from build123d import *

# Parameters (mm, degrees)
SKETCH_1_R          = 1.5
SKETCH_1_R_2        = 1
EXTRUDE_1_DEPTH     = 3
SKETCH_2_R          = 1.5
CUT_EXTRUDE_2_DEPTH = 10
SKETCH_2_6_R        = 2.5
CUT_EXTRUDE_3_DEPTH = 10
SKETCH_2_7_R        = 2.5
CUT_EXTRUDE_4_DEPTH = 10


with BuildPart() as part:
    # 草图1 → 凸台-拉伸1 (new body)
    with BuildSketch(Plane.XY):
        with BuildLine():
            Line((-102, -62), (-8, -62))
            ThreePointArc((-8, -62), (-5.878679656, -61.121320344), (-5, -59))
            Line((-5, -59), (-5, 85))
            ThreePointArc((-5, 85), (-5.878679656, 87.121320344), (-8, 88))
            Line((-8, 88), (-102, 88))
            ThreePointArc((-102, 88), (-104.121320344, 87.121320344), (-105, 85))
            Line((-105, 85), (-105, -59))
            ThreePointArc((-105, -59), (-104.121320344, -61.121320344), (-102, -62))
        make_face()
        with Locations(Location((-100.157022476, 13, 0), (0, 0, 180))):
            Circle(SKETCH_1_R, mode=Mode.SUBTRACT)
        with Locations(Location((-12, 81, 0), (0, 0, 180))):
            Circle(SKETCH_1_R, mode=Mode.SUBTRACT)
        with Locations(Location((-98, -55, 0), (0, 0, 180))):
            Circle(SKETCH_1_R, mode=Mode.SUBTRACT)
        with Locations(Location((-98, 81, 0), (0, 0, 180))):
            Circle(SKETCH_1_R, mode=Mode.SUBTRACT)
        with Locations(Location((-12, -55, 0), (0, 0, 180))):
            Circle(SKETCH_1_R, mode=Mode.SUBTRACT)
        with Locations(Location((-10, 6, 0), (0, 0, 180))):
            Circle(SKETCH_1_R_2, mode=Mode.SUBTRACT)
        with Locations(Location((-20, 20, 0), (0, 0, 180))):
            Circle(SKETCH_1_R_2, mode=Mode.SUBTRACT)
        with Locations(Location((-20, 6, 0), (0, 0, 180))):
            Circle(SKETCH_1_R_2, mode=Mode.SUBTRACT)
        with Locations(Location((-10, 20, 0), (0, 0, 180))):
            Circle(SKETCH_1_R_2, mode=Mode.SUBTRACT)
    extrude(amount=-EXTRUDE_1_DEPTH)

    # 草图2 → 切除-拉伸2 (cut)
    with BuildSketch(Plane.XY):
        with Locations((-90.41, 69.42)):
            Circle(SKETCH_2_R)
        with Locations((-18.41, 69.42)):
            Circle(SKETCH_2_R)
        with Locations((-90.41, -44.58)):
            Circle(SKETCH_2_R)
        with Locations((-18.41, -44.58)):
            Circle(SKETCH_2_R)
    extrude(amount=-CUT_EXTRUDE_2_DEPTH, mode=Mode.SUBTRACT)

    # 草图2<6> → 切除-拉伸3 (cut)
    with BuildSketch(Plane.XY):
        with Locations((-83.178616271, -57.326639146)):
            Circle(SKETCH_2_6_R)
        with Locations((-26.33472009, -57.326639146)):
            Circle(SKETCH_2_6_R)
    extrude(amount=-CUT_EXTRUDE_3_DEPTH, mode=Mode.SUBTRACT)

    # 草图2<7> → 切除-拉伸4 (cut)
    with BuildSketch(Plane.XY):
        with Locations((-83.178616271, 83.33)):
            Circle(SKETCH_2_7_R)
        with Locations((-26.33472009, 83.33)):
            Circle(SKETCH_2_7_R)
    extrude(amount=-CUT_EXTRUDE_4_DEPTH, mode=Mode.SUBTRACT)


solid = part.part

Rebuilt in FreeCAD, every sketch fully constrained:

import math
import FreeCAD as App
import Part
import Sketcher
from FreeCAD import Vector
Q = App.Units.Quantity

doc = App.newDocument("Part")
body = doc.addObject("PartDesign::Body", "Body")

sketch1 = body.newObject("Sketcher::SketchObject", "Sketch")
sketch1.AttachmentSupport = (doc.getObject("XY_Plane"), [""])
sketch1.MapMode = "FlatFace"
sketch1.addGeometry([
    Part.LineSegment(Vector(-102, -62, 0), Vector(-8, -62, 0)),
    Part.ArcOfCircle(Part.Circle(Vector(-8, -59, 0), Vector(0, 0, 1), 3), math.radians(-90), math.radians(0)),
    Part.LineSegment(Vector(-5, -59, 0), Vector(-5, 85, 0)),
    Part.ArcOfCircle(Part.Circle(Vector(-8, 85, 0), Vector(0, 0, 1), 3), math.radians(0), math.radians(90)),
    Part.LineSegment(Vector(-8, 88, 0), Vector(-102, 88, 0)),
    Part.ArcOfCircle(Part.Circle(Vector(-102, 85, 0), Vector(0, 0, 1), 3), math.radians(90), math.radians(180)),
    Part.LineSegment(Vector(-105, 85, 0), Vector(-105, -59, 0)),
    Part.ArcOfCircle(Part.Circle(Vector(-102, -59, 0), Vector(0, 0, 1), 3), math.radians(180), math.radians(270)),
    Part.Circle(Vector(-98, -55, 0), Vector(0, 0, 1), 1.5),
    Part.Circle(Vector(-12, -55, 0), Vector(0, 0, 1), 1.5),
    Part.Circle(Vector(-20, 6, 0), Vector(0, 0, 1), 1),
    Part.Circle(Vector(-10, 6, 0), Vector(0, 0, 1), 1),
    Part.Circle(Vector(-100.2, 13, 0), Vector(0, 0, 1), 1.5),
    Part.Circle(Vector(-98, 81, 0), Vector(0, 0, 1), 1.5),
    Part.Circle(Vector(-20, 20, 0), Vector(0, 0, 1), 1),
    Part.Circle(Vector(-10, 20, 0), Vector(0, 0, 1), 1),
    Part.Circle(Vector(-12, 81, 0), Vector(0, 0, 1), 1.5),
], False)
sketch1.addConstraint([
    Sketcher.Constraint("Tangent", 0, 2, 1, 1),
    Sketcher.Constraint("Tangent", 1, 2, 2, 1),
    Sketcher.Constraint("Tangent", 2, 2, 3, 1),
    Sketcher.Constraint("Tangent", 3, 2, 4, 1),
    Sketcher.Constraint("Tangent", 4, 2, 5, 1),
    Sketcher.Constraint("Tangent", 5, 2, 6, 1),
    Sketcher.Constraint("Tangent", 6, 2, 7, 1),
    Sketcher.Constraint("Tangent", 7, 2, 0, 1),
    Sketcher.Constraint("Horizontal", 0),
    Sketcher.Constraint("Vertical", 2),
    Sketcher.Constraint("Horizontal", 4),
    Sketcher.Constraint("Vertical", 6),
    Sketcher.Constraint("Equal", 1, 3),
    Sketcher.Constraint("Equal", 3, 5),
    Sketcher.Constraint("Equal", 5, 7),
    Sketcher.Constraint("Equal", 8, 9),
    Sketcher.Constraint("Equal", 10, 11),
    Sketcher.Constraint("Equal", 9, 12),
    Sketcher.Constraint("Equal", 12, 13),
    Sketcher.Constraint("Equal", 11, 14),
    Sketcher.Constraint("Equal", 14, 15),
    Sketcher.Constraint("Equal", 13, 16),
    Sketcher.Constraint("Horizontal", 8, 3, 9, 3),
    Sketcher.Constraint("Horizontal", 10, 3, 11, 3),
    Sketcher.Constraint("Horizontal", 14, 3, 15, 3),
    Sketcher.Constraint("Horizontal", 13, 3, 16, 3),
    Sketcher.Constraint("Vertical", 8, 3, 13, 3),
    Sketcher.Constraint("Vertical", 10, 3, 14, 3),
    Sketcher.Constraint("Vertical", 11, 3, 15, 3),
    Sketcher.Constraint("Vertical", 9, 3, 16, 3),
    Sketcher.Constraint("Diameter", 8, Q("3 mm")),
    Sketcher.Constraint("Diameter", 10, Q("2 mm")),
    Sketcher.Constraint("Radius", 1, Q("3 mm")),
    Sketcher.Constraint("DistanceX", 0, 1, 0, 2, Q("94 mm")),
    Sketcher.Constraint("DistanceY", 2, 1, 2, 2, Q("144 mm")),
    Sketcher.Constraint("DistanceX", 1, 3, -1, 1, Q("8 mm")),
    Sketcher.Constraint("DistanceY", 1, 3, -1, 1, Q("59 mm")),
    Sketcher.Constraint("DistanceX", 8, 3, -1, 1, Q("98 mm")),
    Sketcher.Constraint("DistanceY", 8, 3, -1, 1, Q("55 mm")),
    Sketcher.Constraint("DistanceX", 9, 3, -1, 1, Q("12 mm")),
    Sketcher.Constraint("DistanceX", 10, 3, -1, 1, Q("20 mm")),
    Sketcher.Constraint("DistanceY", -1, 1, 10, 3, Q("6 mm")),
    Sketcher.Constraint("DistanceX", 11, 3, -1, 1, Q("10 mm")),
    Sketcher.Constraint("DistanceY", -1, 1, 12, 3, Q("13 mm")),
    Sketcher.Constraint("DistanceY", -1, 1, 13, 3, Q("81 mm")),
    Sketcher.Constraint("DistanceY", -1, 1, 14, 3, Q("20 mm")),
    Sketcher.Constraint("DistanceX", 12, 3, -1, 1, Q("100.157022 mm")),
])
pad1 = body.newObject("PartDesign::Pad", "Pad")
pad1.Profile = sketch1
pad1.Length = 3
pad1.Reversed = True

sketch2 = body.newObject("Sketcher::SketchObject", "Sketch001")
sketch2.AttachmentSupport = (doc.getObject("XY_Plane"), [""])
sketch2.MapMode = "FlatFace"
sketch2.addGeometry([
    Part.Circle(Vector(-90.4, 69.4, 0), Vector(0, 0, 1), 1.5),
    Part.Circle(Vector(-18.4, 69.4, 0), Vector(0, 0, 1), 1.5),
    Part.Circle(Vector(-90.4, -44.6, 0), Vector(0, 0, 1), 1.5),
    Part.Circle(Vector(-18.4, -44.6, 0), Vector(0, 0, 1), 1.5),
], False)
sketch2.addConstraint([
    Sketcher.Constraint("Equal", 0, 1),
    Sketcher.Constraint("Equal", 1, 2),
    Sketcher.Constraint("Equal", 2, 3),
    Sketcher.Constraint("Horizontal", 0, 3, 1, 3),
    Sketcher.Constraint("Horizontal", 2, 3, 3, 3),
    Sketcher.Constraint("Vertical", 0, 3, 2, 3),
    Sketcher.Constraint("Vertical", 1, 3, 3, 3),
    Sketcher.Constraint("Diameter", 0, Q("3 mm")),
    Sketcher.Constraint("DistanceX", 0, 3, 1, 3, Q("72 mm")),
    Sketcher.Constraint("DistanceY", 2, 3, 0, 3, Q("114 mm")),
    Sketcher.Constraint("DistanceX", 0, 3, -1, 1, Q("90.41 mm")),
    Sketcher.Constraint("DistanceY", -1, 1, 0, 3, Q("69.42 mm")),
])
pocket1 = body.newObject("PartDesign::Pocket", "Pocket")
pocket1.Profile = sketch2
pocket1.Length = 10

sketch3 = body.newObject("Sketcher::SketchObject", "Sketch002")
sketch3.AttachmentSupport = (doc.getObject("XY_Plane"), [""])
sketch3.MapMode = "FlatFace"
sketch3.addGeometry([
    Part.Circle(Vector(-83.2, -57.3, 0), Vector(0, 0, 1), 2.5),
    Part.Circle(Vector(-26.3, -57.3, 0), Vector(0, 0, 1), 2.5),
], False)
sketch3.addConstraint([
    Sketcher.Constraint("Equal", 0, 1),
    Sketcher.Constraint("Horizontal", 0, 3, 1, 3),
    Sketcher.Constraint("Diameter", 0, Q("5 mm")),
    Sketcher.Constraint("DistanceY", 0, 3, -1, 1, Q("57.326639 mm")),
    Sketcher.Constraint("DistanceX", 1, 3, -1, 1, Q("26.33472 mm")),
    Sketcher.Constraint("DistanceX", 0, 3, -1, 1, Q("83.178616 mm")),
])
pocket2 = body.newObject("PartDesign::Pocket", "Pocket001")
pocket2.Profile = sketch3
pocket2.Length = 10

sketch4 = body.newObject("Sketcher::SketchObject", "Sketch003")
sketch4.AttachmentSupport = (doc.getObject("XY_Plane"), [""])
sketch4.MapMode = "FlatFace"
sketch4.addGeometry([
    Part.Circle(Vector(-83.2, 83.3, 0), Vector(0, 0, 1), 2.5),
    Part.Circle(Vector(-26.3, 83.3, 0), Vector(0, 0, 1), 2.5),
], False)
sketch4.addConstraint([
    Sketcher.Constraint("Equal", 0, 1),
    Sketcher.Constraint("Horizontal", 0, 3, 1, 3),
    Sketcher.Constraint("Diameter", 0, Q("5 mm")),
    Sketcher.Constraint("DistanceY", -1, 1, 0, 3, Q("83.33 mm")),
    Sketcher.Constraint("DistanceX", 1, 3, -1, 1, Q("26.33472 mm")),
    Sketcher.Constraint("DistanceX", 0, 3, -1, 1, Q("83.178616 mm")),
])
pocket3 = body.newObject("PartDesign::Pocket", "Pocket002")
pocket3.Profile = sketch4
pocket3.Length = 10

doc.recompute()
